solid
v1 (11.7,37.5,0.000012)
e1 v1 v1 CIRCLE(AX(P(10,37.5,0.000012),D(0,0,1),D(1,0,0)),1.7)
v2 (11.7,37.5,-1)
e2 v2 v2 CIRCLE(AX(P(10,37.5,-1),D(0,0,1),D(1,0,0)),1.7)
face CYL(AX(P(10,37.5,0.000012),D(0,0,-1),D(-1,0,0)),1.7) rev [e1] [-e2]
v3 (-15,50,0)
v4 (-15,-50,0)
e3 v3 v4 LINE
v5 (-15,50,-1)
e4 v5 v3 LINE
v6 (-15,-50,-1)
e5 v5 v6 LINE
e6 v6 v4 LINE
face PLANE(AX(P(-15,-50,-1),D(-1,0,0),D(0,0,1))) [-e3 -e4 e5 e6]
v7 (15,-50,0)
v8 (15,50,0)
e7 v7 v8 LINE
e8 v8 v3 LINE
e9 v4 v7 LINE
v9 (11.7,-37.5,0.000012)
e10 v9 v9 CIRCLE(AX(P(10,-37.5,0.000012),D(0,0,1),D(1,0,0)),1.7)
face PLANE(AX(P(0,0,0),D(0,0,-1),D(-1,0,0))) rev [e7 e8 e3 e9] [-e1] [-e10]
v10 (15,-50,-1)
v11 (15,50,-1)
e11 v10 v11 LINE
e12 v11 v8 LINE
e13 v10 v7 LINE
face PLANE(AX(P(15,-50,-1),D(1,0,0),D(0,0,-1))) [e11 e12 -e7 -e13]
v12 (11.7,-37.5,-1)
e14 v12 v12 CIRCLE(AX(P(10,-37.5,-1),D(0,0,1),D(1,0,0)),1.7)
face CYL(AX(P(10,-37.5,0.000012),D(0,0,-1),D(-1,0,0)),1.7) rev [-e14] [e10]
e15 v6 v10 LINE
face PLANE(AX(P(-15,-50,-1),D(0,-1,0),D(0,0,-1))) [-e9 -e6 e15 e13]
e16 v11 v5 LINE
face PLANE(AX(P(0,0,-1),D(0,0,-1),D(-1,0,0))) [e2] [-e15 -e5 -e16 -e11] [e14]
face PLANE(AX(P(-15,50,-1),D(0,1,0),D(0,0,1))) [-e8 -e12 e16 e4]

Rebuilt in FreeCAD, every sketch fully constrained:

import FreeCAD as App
import Part
import Sketcher
from FreeCAD import Vector
Q = App.Units.Quantity


def add_polygon(sketch, points):
    """Adds a closed chain of lines whose ends are joined by coincident constraints."""
    first, n = sketch.GeometryCount, len(points)
    for a, b in zip(points, points[1:] + points[:1]):
        sketch.addGeometry(Part.LineSegment(App.Vector(*a, 0), App.Vector(*b, 0)), False)
    for i in range(n):
        sketch.addConstraint(Sketcher.Constraint("Coincident", first + i, 2, first + (i + 1) % n, 1))

doc = App.newDocument("Part")
params = doc.addObject("Spreadsheet::Sheet", "Params")
for row, (alias, value) in enumerate([
    ("sketch1_width", "30 mm"),
    ("sketch1_height", "100 mm"),
    ("pad1_length", "1 mm"),
    ("sketch2_diameter", "3.4 mm"),
], start=1):
    params.set(f"A{row}", alias)
    params.set(f"B{row}", "=" + value)
    params.setAlias(f"B{row}", alias)

body = doc.addObject("PartDesign::Body", "Body")

sketch1 = doc.addObject("Sketcher::SketchObject", "Sketch")
body.addObject(sketch1)
sketch1.AttachmentSupport = (doc.XY_Plane, [""])
sketch1.MapMode = "FlatFace"
add_polygon(sketch1, [(-15, 50), (-15, -50), (15, -50), (15, 50)])
sketch1.addConstraint([
    Sketcher.Constraint("Vertical", 0),
    Sketcher.Constraint("Horizontal", 1),
    Sketcher.Constraint("Vertical", 2),
    Sketcher.Constraint("Horizontal", 3),
    Sketcher.Constraint("Symmetric", 0, 2, 2, 2, -1, 1),
    Sketcher.Constraint("DistanceX", 1, 1, 1, 2, Q("30 mm")),
    Sketcher.Constraint("DistanceY", 0, 2, 0, 1, Q("100 mm")),
])
sketch1.setExpression("Constraints[9]", "Params.sketch1_width")
sketch1.setExpression("Constraints[10]", "Params.sketch1_height")
pad1 = doc.addObject("PartDesign::Pad", "Pad")
body.addObject(pad1)
pad1.Profile = sketch1
pad1.setExpression("Length", "Params.pad1_length")
pad1.Reversed = True

sketch2 = doc.addObject("Sketcher::SketchObject", "Sketch001")
body.addObject(sketch2)
sketch2.AttachmentSupport = (doc.XY_Plane, [""])
sketch2.MapMode = "FlatFace"
sketch2.addGeometry([
    Part.Circle(Vector(10, -37.5, 0), Vector(0, 0, 1), 1.7),
    Part.Circle(Vector(10, 37.5, 0), Vector(0, 0, 1), 1.7),
], False)
sketch2.addConstraint([
    Sketcher.Constraint("Equal", 0, 1),
    Sketcher.Constraint("Symmetric", 0, 3, 1, 3, -1),
    Sketcher.Constraint("Diameter", 0, Q("3.4 mm")),
    Sketcher.Constraint("DistanceX", -1, 1, 0, 3, Q("10 mm")),
    Sketcher.Constraint("DistanceY", 0, 3, 1, 3, Q("75 mm")),
])
sketch2.setExpression("Constraints[2]", "Params.sketch2_diameter")
pocket1 = doc.addObject("PartDesign::Pocket", "Pocket")
body.addObject(pocket1)
pocket1.Profile = sketch2
pocket1.Type = "ThroughAll"
pocket1.Midplane = True

doc.recompute()
